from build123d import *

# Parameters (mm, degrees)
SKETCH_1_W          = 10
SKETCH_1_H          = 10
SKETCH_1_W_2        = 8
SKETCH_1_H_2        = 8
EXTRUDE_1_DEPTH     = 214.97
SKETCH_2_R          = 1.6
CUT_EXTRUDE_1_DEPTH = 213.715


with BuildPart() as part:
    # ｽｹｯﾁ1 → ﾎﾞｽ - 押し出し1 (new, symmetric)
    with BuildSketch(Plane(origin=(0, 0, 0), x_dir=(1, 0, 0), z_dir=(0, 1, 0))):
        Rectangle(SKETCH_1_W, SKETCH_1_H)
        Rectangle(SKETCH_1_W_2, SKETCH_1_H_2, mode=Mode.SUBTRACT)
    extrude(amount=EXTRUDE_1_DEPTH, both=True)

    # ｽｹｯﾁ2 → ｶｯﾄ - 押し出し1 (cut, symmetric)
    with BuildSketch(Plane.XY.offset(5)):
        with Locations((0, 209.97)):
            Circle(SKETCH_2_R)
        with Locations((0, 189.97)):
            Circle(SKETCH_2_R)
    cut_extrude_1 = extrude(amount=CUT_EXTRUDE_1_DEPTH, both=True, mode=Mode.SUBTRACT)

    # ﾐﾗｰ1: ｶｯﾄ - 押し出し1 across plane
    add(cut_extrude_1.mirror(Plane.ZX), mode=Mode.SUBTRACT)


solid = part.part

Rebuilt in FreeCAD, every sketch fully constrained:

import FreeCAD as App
import Part
import Sketcher
from FreeCAD import Vector


def add_polygon(sketch, points):
    """Adds a closed chain of lines whose ends are joined by coincident constraints."""
    first, n = sketch.GeometryCount, len(points)
    for a, b in zip(points, points[1:] + points[:1]):
        sketch.addGeometry(Part.LineSegment(App.Vector(*a, 0), App.Vector(*b, 0)), False)
    for i in range(n):
        sketch.addConstraint(Sketcher.Constraint("Coincident", first + i, 2, first + (i + 1) % n, 1))

doc = App.newDocument("Part")
body = doc.addObject("PartDesign::Body", "Body")

# Sketch on XZ plane
sketch1 = body.newObject("Sketcher::SketchObject", "Sketch")
sketch1.AttachmentSupport = (doc.getObject("XZ_Plane"), [""])
sketch1.MapMode = "FlatFace"
add_polygon(sketch1, [(-5, -5), (-5, 5), (5, 5), (5, -5)])  # lines 0-3
add_polygon(sketch1, [(4, 4), (-4, 4), (-4, -4), (4, -4)])  # lines 4-7
sketch1.addConstraint(Sketcher.Constraint("Vertical", 0))
sketch1.addConstraint(Sketcher.Constraint("Horizontal", 1))
sketch1.addConstraint(Sketcher.Constraint("Vertical", 2))
sketch1.addConstraint(Sketcher.Constraint("Horizontal", 3))
sketch1.addConstraint(Sketcher.Constraint("Horizontal", 4))
sketch1.addConstraint(Sketcher.Constraint("Vertical", 5))
sketch1.addConstraint(Sketcher.Constraint("Horizontal", 6))
sketch1.addConstraint(Sketcher.Constraint("Vertical", 7))
sketch1.addConstraint(Sketcher.Constraint("Symmetric", 0, 2, 2, 2, -1, 1))
sketch1.addConstraint(Sketcher.Constraint("Symmetric", 4, 2, 6, 2, -1, 1))
sketch1.addConstraint(Sketcher.Constraint("Equal", 3, 0))
sketch1.addConstraint(Sketcher.Constraint("Equal", 6, 5))
sketch1.addConstraint(Sketcher.Constraint("DistanceX", 1, 1, 1, 2, 10.0))
sketch1.addConstraint(Sketcher.Constraint("DistanceX", 4, 2, 4, 1, 8.0))
pad1 = body.newObject("PartDesign::Pad", "Pad")
pad1.Profile = sketch1
pad1.Length = 429.94
pad1.Midplane = True

# Sketch on XY plane
sketch2 = body.newObject("Sketcher::SketchObject", "Sketch001")
sketch2.AttachmentSupport = (doc.getObject("XY_Plane"), [""])
sketch2.MapMode = "FlatFace"
sketch2.AttachmentOffset = App.Placement(Vector(0, 0, 5), App.Rotation())
sketch2.addGeometry(Part.Circle(Vector(0, 210, 0), Vector(0, 0, 1), 1.6), False)
sketch2.addGeometry(Part.Circle(Vector(0, 190, 0), Vector(0, 0, 1), 1.6), False)
sketch2.addConstraint(Sketcher.Constraint("Equal", 0, 1))
sketch2.addConstraint(Sketcher.Constraint("PointOnObject", 0, 3, -2))
sketch2.addConstraint(Sketcher.Constraint("PointOnObject", 1, 3, -2))
sketch2.addConstraint(Sketcher.Constraint("Diameter", 0, 3.2))
sketch2.addConstraint(Sketcher.Constraint("DistanceY", 1, 3, 0, 3, 20.0))
sketch2.addConstraint(Sketcher.Constraint("DistanceY", -1, 1, 0, 3, 209.97))
pocket1 = body.newObject("PartDesign::Pocket", "Pocket")
pocket1.Profile = sketch2
pocket1.Length = 427.43
pocket1.Midplane = True
doc.recompute()

mirrored = body.newObject("PartDesign::Mirrored", "Mirrored")
mirrored.Originals = [pocket1]
mirrored.MirrorPlane = (doc.getObject("XZ_Plane"), [""])
body.Tip = mirrored

doc.recompute()
